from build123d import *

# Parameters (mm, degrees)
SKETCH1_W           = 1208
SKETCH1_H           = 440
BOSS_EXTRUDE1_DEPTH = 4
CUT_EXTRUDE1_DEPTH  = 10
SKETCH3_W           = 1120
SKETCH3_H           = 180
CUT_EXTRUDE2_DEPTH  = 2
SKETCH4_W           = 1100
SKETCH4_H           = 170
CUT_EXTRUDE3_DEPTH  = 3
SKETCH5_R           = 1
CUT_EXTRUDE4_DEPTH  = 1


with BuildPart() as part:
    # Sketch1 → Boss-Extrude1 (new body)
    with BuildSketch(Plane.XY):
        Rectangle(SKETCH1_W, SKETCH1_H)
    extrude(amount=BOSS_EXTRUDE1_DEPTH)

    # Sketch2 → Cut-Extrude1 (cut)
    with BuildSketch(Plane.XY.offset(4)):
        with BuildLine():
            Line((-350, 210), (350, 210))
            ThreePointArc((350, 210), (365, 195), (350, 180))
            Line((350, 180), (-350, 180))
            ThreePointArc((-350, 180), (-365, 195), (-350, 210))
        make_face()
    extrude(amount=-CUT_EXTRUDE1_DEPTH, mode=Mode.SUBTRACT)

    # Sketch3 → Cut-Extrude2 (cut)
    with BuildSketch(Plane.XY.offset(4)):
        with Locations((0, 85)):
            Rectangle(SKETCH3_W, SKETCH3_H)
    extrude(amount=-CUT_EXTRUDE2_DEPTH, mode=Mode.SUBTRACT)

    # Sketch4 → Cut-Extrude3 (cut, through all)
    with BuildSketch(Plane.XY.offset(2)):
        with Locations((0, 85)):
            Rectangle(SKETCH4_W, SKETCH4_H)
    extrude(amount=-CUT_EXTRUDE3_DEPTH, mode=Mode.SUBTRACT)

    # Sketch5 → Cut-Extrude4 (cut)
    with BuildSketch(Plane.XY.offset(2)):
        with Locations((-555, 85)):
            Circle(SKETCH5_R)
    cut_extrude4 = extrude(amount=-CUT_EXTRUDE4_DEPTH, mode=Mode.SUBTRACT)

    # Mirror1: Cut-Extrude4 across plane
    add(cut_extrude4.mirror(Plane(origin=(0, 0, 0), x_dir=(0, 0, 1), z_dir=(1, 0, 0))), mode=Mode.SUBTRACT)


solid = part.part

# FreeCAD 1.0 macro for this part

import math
import FreeCAD as App
import Part
import Sketcher

doc = App.newDocument("Part")
params = doc.addObject("Spreadsheet::Sheet", "Params")
for row, (alias, value) in enumerate([
    ("sketch1_width", "1208 mm"),
    ("sketch1_height", "440 mm"),
    ("pad1_length", "4 mm"),
    ("sketch2_radius", "15 mm"),
    ("sketch2_width", "700 mm"),
    ("pocket1_length", "10 mm"),
    ("sketch3_width", "1120 mm"),
    ("sketch3_height", "180 mm"),
    ("pocket2_length", "2 mm"),
    ("sketch4_width", "1100 mm"),
    ("sketch4_height", "170 mm"),
    ("sketch5_diameter", "2 mm"),
    ("pocket4_length", "1 mm"),
], start=1):
    params.set(f"A{row}", alias)
    params.set(f"B{row}", "=" + value)
    params.setAlias(f"B{row}", alias)

body = doc.addObject("PartDesign::Body", "Body")

# Sketch on XY plane
sketch1 = body.newObject("Sketcher::SketchObject", "Sketch")
sketch1.AttachmentSupport = (doc.getObject("XY_Plane"), [""])
sketch1.MapMode = "FlatFace"
sketch1.addGeometry([
    Part.LineSegment(App.Vector(-604, 220, 0), App.Vector(-604, -220, 0)),
    Part.LineSegment(App.Vector(-604, -220, 0), App.Vector(604, -220, 0)),
    Part.LineSegment(App.Vector(604, -220, 0), App.Vector(604, 220, 0)),
    Part.LineSegment(App.Vector(604, 220, 0), App.Vector(-604, 220, 0)),
], False)
sketch1.addConstraint([
    Sketcher.Constraint("Coincident", 0, 2, 1, 1),
    Sketcher.Constraint("Coincident", 1, 2, 2, 1),
    Sketcher.Constraint("Coincident", 2, 2, 3, 1),
    Sketcher.Constraint("Coincident", 3, 2, 0, 1),
    Sketcher.Constraint("Vertical", 0),
    Sketcher.Constraint("Horizontal", 1),
    Sketcher.Constraint("Vertical", 2),
    Sketcher.Constraint("Horizontal", 3),
    Sketcher.Constraint("Symmetric", 0, 2, 2, 2, -1, 1),
    Sketcher.Constraint("DistanceX", 1, 1, 1, 2, 1208.0),
    Sketcher.Constraint("DistanceY", 0, 2, 0, 1, 440.0),
])
sketch1.setExpression("Constraints[9]", "Params.sketch1_width")
sketch1.setExpression("Constraints[10]", "Params.sketch1_height")
pad1 = body.newObject("PartDesign::Pad", "Pad")
pad1.Profile = sketch1
pad1.setExpression("Length", "Params.pad1_length")

# Sketch on XY plane
sketch2 = body.newObject("Sketcher::SketchObject", "Sketch001")
sketch2.AttachmentSupport = (doc.getObject("XY_Plane"), [""])
sketch2.MapMode = "FlatFace"
sketch2.AttachmentOffset = App.Placement(App.Vector(0, 0, 4), App.Rotation())
sketch2.addGeometry([
    Part.LineSegment(App.Vector(350, 210, 0), App.Vector(-350, 210, 0)),
    Part.ArcOfCircle(Part.Circle(App.Vector(-350, 195, 0), App.Vector(0, 0, 1), 15), math.radians(90), math.radians(270)),
    Part.LineSegment(App.Vector(-350, 180, 0), App.Vector(350, 180, 0)),
    Part.ArcOfCircle(Part.Circle(App.Vector(350, 195, 0), App.Vector(0, 0, 1), 15), math.radians(-90), math.radians(90)),
], False)
sketch2.addConstraint([
    Sketcher.Constraint("Tangent", 0, 2, 1, 1),
    Sketcher.Constraint("Tangent", 1, 2, 2, 1),
    Sketcher.Constraint("Tangent", 2, 2, 3, 1),
    Sketcher.Constraint("Tangent", 3, 2, 0, 1),
    Sketcher.Constraint("Horizontal", 0),
    Sketcher.Constraint("Horizontal", 2),
    Sketcher.Constraint("Radius", 1, 15.0),
    Sketcher.Constraint("DistanceX", 0, 2, 0, 1, 700.0),
    Sketcher.Constraint("DistanceX", 1, 3, -1, 1, 350.0),
    Sketcher.Constraint("DistanceY", -1, 1, 1, 3, 195.0),
])
sketch2.setExpression("Constraints[6]", "Params.sketch2_radius")
sketch2.setExpression("Constraints[7]", "Params.sketch2_width")
pocket1 = body.newObject("PartDesign::Pocket", "Pocket")
pocket1.Profile = sketch2
pocket1.setExpression("Length", "Params.pocket1_length")

# Sketch on XY plane
sketch3 = body.newObject("Sketcher::SketchObject", "Sketch002")
sketch3.AttachmentSupport = (doc.getObject("XY_Plane"), [""])
sketch3.MapMode = "FlatFace"
sketch3.AttachmentOffset = App.Placement(App.Vector(0, 0, 4), App.Rotation())
sketch3.addGeometry([
    Part.LineSegment(App.Vector(-560, 175, 0), App.Vector(-560, -5, 0)),
    Part.LineSegment(App.Vector(-560, -5, 0), App.Vector(560, -5, 0)),
    Part.LineSegment(App.Vector(560, -5, 0), App.Vector(560, 175, 0)),
    Part.LineSegment(App.Vector(560, 175, 0), App.Vector(-560, 175, 0)),
], False)
sketch3.addConstraint([
    Sketcher.Constraint("Coincident", 0, 2, 1, 1),
    Sketcher.Constraint("Coincident", 1, 2, 2, 1),
    Sketcher.Constraint("Coincident", 2, 2, 3, 1),
    Sketcher.Constraint("Coincident", 3, 2, 0, 1),
    Sketcher.Constraint("Vertical", 0),
    Sketcher.Constraint("Horizontal", 1),
    Sketcher.Constraint("Vertical", 2),
    Sketcher.Constraint("Horizontal", 3),
    Sketcher.Constraint("DistanceX", 1, 1, 1, 2, 1120.0),
    Sketcher.Constraint("DistanceY", 0, 2, 0, 1, 180.0),
    Sketcher.Constraint("DistanceX", 0, 2, -1, 1, 560.0),
    Sketcher.Constraint("DistanceY", 0, 2, -1, 1, 5.0),
])
sketch3.setExpression("Constraints[8]", "Params.sketch3_width")
sketch3.setExpression("Constraints[9]", "Params.sketch3_height")
pocket2 = body.newObject("PartDesign::Pocket", "Pocket001")
pocket2.Profile = sketch3
pocket2.setExpression("Length", "Params.pocket2_length")

# Sketch on XY plane
sketch4 = body.newObject("Sketcher::SketchObject", "Sketch003")
sketch4.AttachmentSupport = (doc.getObject("XY_Plane"), [""])
sketch4.MapMode = "FlatFace"
sketch4.AttachmentOffset = App.Placement(App.Vector(0, 0, 2), App.Rotation())
sketch4.addGeometry([
    Part.LineSegment(App.Vector(-550, 170, 0), App.Vector(-550, 0, 0)),
    Part.LineSegment(App.Vector(-550, 0, 0), App.Vector(550, 0, 0)),
    Part.LineSegment(App.Vector(550, 0, 0), App.Vector(550, 170, 0)),
    Part.LineSegment(App.Vector(550, 170, 0), App.Vector(-550, 170, 0)),
], False)
sketch4.addConstraint([
    Sketcher.Constraint("Coincident", 0, 2, 1, 1),
    Sketcher.Constraint("Coincident", 1, 2, 2, 1),
    Sketcher.Constraint("Coincident", 2, 2, 3, 1),
    Sketcher.Constraint("Coincident", 3, 2, 0, 1),
    Sketcher.Constraint("Vertical", 0),
    Sketcher.Constraint("Horizontal", 1),
    Sketcher.Constraint("Vertical", 2),
    Sketcher.Constraint("Horizontal", 3),
    Sketcher.Constraint("Symmetric", 0, 2, 1, 2, -1, 1),
    Sketcher.Constraint("DistanceX", 1, 1, 1, 2, 1100.0),
    Sketcher.Constraint("DistanceY", 0, 2, 0, 1, 170.0),
])
sketch4.setExpression("Constraints[9]", "Params.sketch4_width")
sketch4.setExpression("Constraints[10]", "Params.sketch4_height")
pocket3 = body.newObject("PartDesign::Pocket", "Pocket002")
pocket3.Profile = sketch4
pocket3.Type = "ThroughAll"

# Sketch on XY plane
sketch5 = body.newObject("Sketcher::SketchObject", "Sketch004")
sketch5.AttachmentSupport = (doc.getObject("XY_Plane"), [""])
sketch5.MapMode = "FlatFace"
sketch5.AttachmentOffset = App.Placement(App.Vector(0, 0, 2), App.Rotation())
sketch5.addGeometry(Part.Circle(App.Vector(-555, 85, 0), App.Vector(0, 0, 1), 1), False)
sketch5.addConstraint([
    Sketcher.Constraint("Diameter", 0, 2.0),
    Sketcher.Constraint("DistanceX", 0, 3, -1, 1, 555.0),
    Sketcher.Constraint("DistanceY", -1, 1, 0, 3, 85.0),
])
sketch5.setExpression("Constraints[0]", "Params.sketch5_diameter")
pocket4 = body.newObject("PartDesign::Pocket", "Pocket003")
pocket4.Profile = sketch5
pocket4.setExpression("Length", "Params.pocket4_length")
doc.recompute()

mirrored = body.newObject("PartDesign::Mirrored", "Mirrored")
mirrored.Originals = [pocket4]
mirrored.MirrorPlane = (doc.getObject("YZ_Plane"), [""])
body.Tip = mirrored

doc.recompute()
